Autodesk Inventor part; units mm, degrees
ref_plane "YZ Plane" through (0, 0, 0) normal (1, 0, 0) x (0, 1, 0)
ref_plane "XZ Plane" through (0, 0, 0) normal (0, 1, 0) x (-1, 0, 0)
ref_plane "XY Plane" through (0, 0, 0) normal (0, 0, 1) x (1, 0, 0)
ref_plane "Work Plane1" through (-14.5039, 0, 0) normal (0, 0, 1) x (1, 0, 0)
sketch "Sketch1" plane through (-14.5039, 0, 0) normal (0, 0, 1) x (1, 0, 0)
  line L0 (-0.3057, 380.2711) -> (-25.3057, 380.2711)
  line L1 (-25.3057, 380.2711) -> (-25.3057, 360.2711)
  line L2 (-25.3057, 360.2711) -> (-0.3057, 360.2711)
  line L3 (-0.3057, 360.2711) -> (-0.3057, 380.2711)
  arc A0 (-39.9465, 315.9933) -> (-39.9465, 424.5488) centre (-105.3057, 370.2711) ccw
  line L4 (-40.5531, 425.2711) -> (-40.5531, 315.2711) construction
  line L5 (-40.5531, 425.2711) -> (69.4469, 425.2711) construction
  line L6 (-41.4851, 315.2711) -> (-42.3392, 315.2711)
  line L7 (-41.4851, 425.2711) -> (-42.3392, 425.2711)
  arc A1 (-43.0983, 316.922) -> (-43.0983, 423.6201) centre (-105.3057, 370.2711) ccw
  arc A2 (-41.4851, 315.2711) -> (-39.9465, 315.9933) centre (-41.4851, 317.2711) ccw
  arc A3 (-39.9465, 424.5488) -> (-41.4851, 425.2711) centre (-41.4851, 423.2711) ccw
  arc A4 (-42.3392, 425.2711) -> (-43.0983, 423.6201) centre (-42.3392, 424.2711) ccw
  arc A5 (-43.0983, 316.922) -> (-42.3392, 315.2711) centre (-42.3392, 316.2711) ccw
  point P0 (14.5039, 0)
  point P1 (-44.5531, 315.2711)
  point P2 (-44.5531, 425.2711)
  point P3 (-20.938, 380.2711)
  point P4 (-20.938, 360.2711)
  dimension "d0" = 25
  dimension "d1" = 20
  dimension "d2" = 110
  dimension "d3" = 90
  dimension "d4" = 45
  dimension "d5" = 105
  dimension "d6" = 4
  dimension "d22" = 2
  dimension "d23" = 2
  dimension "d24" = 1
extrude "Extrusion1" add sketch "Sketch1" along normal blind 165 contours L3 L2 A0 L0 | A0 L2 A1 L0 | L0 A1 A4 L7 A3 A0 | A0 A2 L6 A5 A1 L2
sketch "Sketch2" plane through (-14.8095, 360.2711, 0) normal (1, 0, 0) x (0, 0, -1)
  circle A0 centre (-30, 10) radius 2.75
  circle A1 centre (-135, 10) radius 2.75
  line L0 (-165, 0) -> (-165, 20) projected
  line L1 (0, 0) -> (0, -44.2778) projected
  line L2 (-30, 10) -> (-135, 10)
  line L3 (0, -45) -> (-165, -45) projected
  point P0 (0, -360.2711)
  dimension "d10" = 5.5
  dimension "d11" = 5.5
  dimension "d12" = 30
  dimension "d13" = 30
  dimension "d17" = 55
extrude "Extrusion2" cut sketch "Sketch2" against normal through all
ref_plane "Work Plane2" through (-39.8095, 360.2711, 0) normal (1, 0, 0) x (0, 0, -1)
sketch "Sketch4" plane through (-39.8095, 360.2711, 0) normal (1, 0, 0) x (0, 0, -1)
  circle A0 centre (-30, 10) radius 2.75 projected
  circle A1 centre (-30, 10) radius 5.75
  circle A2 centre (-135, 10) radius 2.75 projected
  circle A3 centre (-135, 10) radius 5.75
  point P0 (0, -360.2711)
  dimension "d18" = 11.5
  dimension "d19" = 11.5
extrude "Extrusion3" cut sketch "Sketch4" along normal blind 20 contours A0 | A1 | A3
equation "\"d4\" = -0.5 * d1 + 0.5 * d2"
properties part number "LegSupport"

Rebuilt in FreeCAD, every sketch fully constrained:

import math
import FreeCAD as App
import Part
import Sketcher
Q = App.Units.Quantity

doc = App.newDocument("Part")
body = doc.addObject("PartDesign::Body", "Body")

# Sketch on XY plane
sketch1 = body.newObject("Sketcher::SketchObject", "Sketch")
sketch1.AttachmentSupport = (doc.getObject("XY_Plane"), [""])
sketch1.MapMode = "FlatFace"
sketch1.addGeometry([
    Part.LineSegment(App.Vector(-14.8096, 360.2711, 0), App.Vector(-14.8096, 380.2711, 0)),  # 0
    Part.LineSegment(App.Vector(-14.8096, 380.2711, 0), App.Vector(-35.441932, 380.2711, 0)),  # 1
    Part.ArcOfCircle(Part.Circle(App.Vector(-119.8096, 370.2711, 0), App.Vector(0, 0, 1), 84.958252), math.radians(6.759663), math.radians(39.708015)),  # 2
    Part.ArcOfCircle(Part.Circle(App.Vector(-55.989, 423.2711, 0), App.Vector(0, 0, 1), 1.999952), math.radians(39.707267), math.radians(90)),  # 3
    Part.LineSegment(App.Vector(-55.989, 425.2711, 0), App.Vector(-56.8431, 425.2711, 0)),  # 4
    Part.ArcOfCircle(Part.Circle(App.Vector(-56.8431, 424.2711, 0), App.Vector(0, 0, 1), 1), math.radians(90), math.radians(220.616209)),  # 5
    Part.ArcOfCircle(Part.Circle(App.Vector(-119.8096, 370.2711, 0), App.Vector(0, 0, 1), 81.950516), math.radians(-40.616408), math.radians(40.616355)),  # 6
    Part.ArcOfCircle(Part.Circle(App.Vector(-56.8431, 316.2711, 0), App.Vector(0, 0, 1), 0.999952), math.radians(139.38814), math.radians(270)),  # 7
    Part.LineSegment(App.Vector(-56.8431, 315.2711, 0), App.Vector(-55.989, 315.2711, 0)),  # 8
    Part.ArcOfCircle(Part.Circle(App.Vector(-55.989, 317.2711, 0), App.Vector(0, 0, 1), 2), math.radians(-90), math.radians(-39.709471)),  # 9
    Part.ArcOfCircle(Part.Circle(App.Vector(-119.8096, 370.2711, 0), App.Vector(0, 0, 1), 84.958252), math.radians(-39.708067), math.radians(-6.759662)),  # 10
    Part.LineSegment(App.Vector(-35.44192, 360.2711, 0), App.Vector(-14.8096, 360.2711, 0)),  # 11
], False)
sketch1.addConstraint([
    Sketcher.Constraint("Coincident", 0, 2, 1, 1),
    Sketcher.Constraint("Coincident", 1, 2, 2, 1),
    Sketcher.Constraint("Tangent", 2, 2, 3, 1),
    Sketcher.Constraint("Tangent", 3, 2, 4, 1),
    Sketcher.Constraint("Tangent", 4, 2, 5, 1),
    Sketcher.Constraint("Tangent", 5, 2, 6, 2),
    Sketcher.Constraint("Tangent", 6, 1, 7, 1),
    Sketcher.Constraint("Tangent", 7, 2, 8, 1),
    Sketcher.Constraint("Tangent", 8, 2, 9, 1),
    Sketcher.Constraint("Tangent", 9, 2, 10, 1),
    Sketcher.Constraint("Coincident", 10, 2, 11, 1),
    Sketcher.Constraint("Coincident", 11, 2, 0, 1),
    Sketcher.Constraint("Vertical", 0),
    Sketcher.Constraint("Horizontal", 1),
    Sketcher.Constraint("Horizontal", 4),
    Sketcher.Constraint("Horizontal", 8),
    Sketcher.Constraint("Horizontal", 11),
    Sketcher.Constraint("Coincident", 6, 3, 2, 3),
    Sketcher.Constraint("Coincident", 10, 3, 2, 3),
    Sketcher.Constraint("Equal", 5, 7),
    Sketcher.Constraint("Equal", 3, 9),
    Sketcher.Constraint("Equal", 2, 10),
    Sketcher.Constraint("Vertical", 5, 3, 7, 3),
    Sketcher.Constraint("Vertical", 1, 2, 10, 2),
    Sketcher.Constraint("Radius", 3, Q("2 mm")),
    Sketcher.Constraint("Radius", 5, Q("1 mm")),
    Sketcher.Constraint("DistanceY", 0, 1, 0, 2, Q("20 mm")),
    Sketcher.Constraint("DistanceX", 2, 3, 0, 2, Q("105 mm")),
    Sketcher.Constraint("DistanceY", 1, 2, 3, 2, Q("45 mm")),
    Sketcher.Constraint("Radius", 2, Q("84.9583 mm")),
    Sketcher.Constraint("Radius", 6, Q("81.9505 mm")),
    Sketcher.Constraint("DistanceY", -1, 1, 5, 2, Q("423.62 mm")),
    Sketcher.Constraint("DistanceX", 3, 3, -1, 1, Q("55.989 mm")),
])
pad1 = body.newObject("PartDesign::Pad", "Pad")
pad1.Profile = sketch1
pad1.Length = 165

# Sketch on YZ plane
sketch2 = body.newObject("Sketcher::SketchObject", "Sketch001")
sketch2.AttachmentSupport = (doc.getObject("YZ_Plane"), [""])
sketch2.MapMode = "FlatFace"
sketch2.AttachmentOffset = App.Placement(App.Vector(0, 0, -14.8095), App.Rotation())
sketch2.addGeometry([
    Part.Circle(App.Vector(370.2711, 30, 0), App.Vector(0, 0, 1), 2.75),
    Part.Circle(App.Vector(370.2711, 135, 0), App.Vector(0, 0, 1), 2.75),
], False)
sketch2.addConstraint([
    Sketcher.Constraint("Equal", 0, 1),
    Sketcher.Constraint("Vertical", 0, 3, 1, 3),
    Sketcher.Constraint("Diameter", 0, Q("5.5 mm")),
    Sketcher.Constraint("DistanceY", -1, 1, 0, 3, Q("30 mm")),
    Sketcher.Constraint("DistanceY", -1, 1, 1, 3, Q("135 mm")),
    Sketcher.Constraint("DistanceX", -1, 1, 0, 3, Q("370.271 mm")),
])
pocket1 = body.newObject("PartDesign::Pocket", "Pocket")
pocket1.Profile = sketch2
pocket1.Type = "ThroughAll"

# Sketch on YZ plane
sketch3 = body.newObject("Sketcher::SketchObject", "Sketch002")
sketch3.AttachmentSupport = (doc.getObject("YZ_Plane"), [""])
sketch3.MapMode = "FlatFace"
sketch3.AttachmentOffset = App.Placement(App.Vector(0, 0, -39.8095), App.Rotation())
sketch3.addGeometry([
    Part.Circle(App.Vector(370.2711, 30, 0), App.Vector(0, 0, 1), 5.75),
    Part.Circle(App.Vector(370.2711, 135, 0), App.Vector(0, 0, 1), 5.75),
    Part.Circle(App.Vector(370.2711, 135, 0), App.Vector(0, 0, 1), 2.75),
], False)
sketch3.addConstraint([
    Sketcher.Constraint("Coincident", 2, 3, 1, 3),
    Sketcher.Constraint("Equal", 0, 1),
    Sketcher.Constraint("Vertical", 0, 3, 1, 3),
    Sketcher.Constraint("Diameter", 0, Q("11.5 mm")),
    Sketcher.Constraint("Diameter", 2, Q("5.5 mm")),
    Sketcher.Constraint("DistanceY", -1, 1, 0, 3, Q("30 mm")),
    Sketcher.Constraint("DistanceY", -1, 1, 1, 3, Q("135 mm")),
    Sketcher.Constraint("DistanceX", -1, 1, 0, 3, Q("370.271 mm")),
])
pocket2 = body.newObject("PartDesign::Pocket", "Pocket001")
pocket2.Profile = sketch3
pocket2.Length = 20
pocket2.Reversed = True

doc.recompute()
